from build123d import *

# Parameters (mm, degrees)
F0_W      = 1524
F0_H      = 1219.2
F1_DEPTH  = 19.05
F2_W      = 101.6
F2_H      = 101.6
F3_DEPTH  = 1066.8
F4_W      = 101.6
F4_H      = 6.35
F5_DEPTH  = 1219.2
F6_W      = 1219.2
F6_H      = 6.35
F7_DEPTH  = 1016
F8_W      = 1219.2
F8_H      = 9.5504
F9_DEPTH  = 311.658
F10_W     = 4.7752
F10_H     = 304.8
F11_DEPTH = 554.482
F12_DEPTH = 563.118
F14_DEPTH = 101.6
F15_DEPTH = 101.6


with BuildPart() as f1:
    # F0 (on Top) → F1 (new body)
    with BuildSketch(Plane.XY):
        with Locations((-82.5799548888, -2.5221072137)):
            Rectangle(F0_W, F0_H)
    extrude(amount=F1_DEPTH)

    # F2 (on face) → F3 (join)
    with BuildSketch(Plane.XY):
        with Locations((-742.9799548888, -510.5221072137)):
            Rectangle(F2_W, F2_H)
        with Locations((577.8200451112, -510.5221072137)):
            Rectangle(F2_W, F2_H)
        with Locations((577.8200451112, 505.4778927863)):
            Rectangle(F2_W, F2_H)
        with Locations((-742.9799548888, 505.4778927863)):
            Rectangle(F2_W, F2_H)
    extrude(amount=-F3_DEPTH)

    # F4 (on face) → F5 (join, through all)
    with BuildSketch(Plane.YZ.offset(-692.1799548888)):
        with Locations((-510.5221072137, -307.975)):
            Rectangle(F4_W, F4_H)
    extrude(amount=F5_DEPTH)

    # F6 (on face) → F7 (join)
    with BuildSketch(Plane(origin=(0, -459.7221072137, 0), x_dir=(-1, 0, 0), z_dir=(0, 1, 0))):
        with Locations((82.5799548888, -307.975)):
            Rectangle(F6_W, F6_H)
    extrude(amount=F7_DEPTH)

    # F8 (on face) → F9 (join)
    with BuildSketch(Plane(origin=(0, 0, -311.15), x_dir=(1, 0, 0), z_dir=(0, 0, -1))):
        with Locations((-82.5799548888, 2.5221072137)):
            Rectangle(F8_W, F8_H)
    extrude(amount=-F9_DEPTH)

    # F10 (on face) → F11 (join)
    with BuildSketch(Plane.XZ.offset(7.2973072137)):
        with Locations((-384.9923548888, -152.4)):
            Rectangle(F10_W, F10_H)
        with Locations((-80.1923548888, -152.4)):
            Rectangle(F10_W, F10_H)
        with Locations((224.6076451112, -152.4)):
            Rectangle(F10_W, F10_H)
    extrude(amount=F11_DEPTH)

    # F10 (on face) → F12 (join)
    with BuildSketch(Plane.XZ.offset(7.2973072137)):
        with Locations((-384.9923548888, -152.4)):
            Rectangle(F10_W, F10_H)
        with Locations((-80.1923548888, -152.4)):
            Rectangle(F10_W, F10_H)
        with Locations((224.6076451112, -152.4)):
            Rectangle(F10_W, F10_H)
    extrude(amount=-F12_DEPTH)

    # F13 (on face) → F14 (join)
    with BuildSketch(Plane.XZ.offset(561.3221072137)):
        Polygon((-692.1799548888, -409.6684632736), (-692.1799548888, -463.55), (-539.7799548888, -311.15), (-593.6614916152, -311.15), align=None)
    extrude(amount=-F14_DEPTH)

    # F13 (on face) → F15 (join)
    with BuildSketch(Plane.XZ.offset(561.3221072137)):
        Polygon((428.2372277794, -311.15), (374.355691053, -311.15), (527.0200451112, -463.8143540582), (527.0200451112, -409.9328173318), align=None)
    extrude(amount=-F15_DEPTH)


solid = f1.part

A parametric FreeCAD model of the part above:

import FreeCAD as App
import Part
import Sketcher
from FreeCAD import Vector
Q = App.Units.Quantity

doc = App.newDocument("Part")
body = doc.addObject("PartDesign::Body", "Body")

# Sketch on XY plane
sketch1 = body.newObject("Sketcher::SketchObject", "Sketch")
sketch1.AttachmentSupport = (doc.getObject("XY_Plane"), [""])
sketch1.MapMode = "FlatFace"
sketch1.addGeometry([
    Part.LineSegment(Vector(-845, 607, 0), Vector(-845, -612, 0)),
    Part.LineSegment(Vector(-845, -612, 0), Vector(679, -612, 0)),
    Part.LineSegment(Vector(679, -612, 0), Vector(679, 607, 0)),
    Part.LineSegment(Vector(679, 607, 0), Vector(-845, 607, 0)),
], False)
sketch1.addConstraint([
    Sketcher.Constraint("Coincident", 0, 2, 1, 1),
    Sketcher.Constraint("Coincident", 1, 2, 2, 1),
    Sketcher.Constraint("Coincident", 2, 2, 3, 1),
    Sketcher.Constraint("Coincident", 3, 2, 0, 1),
    Sketcher.Constraint("Vertical", 0),
    Sketcher.Constraint("Horizontal", 1),
    Sketcher.Constraint("Vertical", 2),
    Sketcher.Constraint("Horizontal", 3),
    Sketcher.Constraint("DistanceX", 1, 1, 1, 2, Q("60 in")),
    Sketcher.Constraint("DistanceY", 0, 2, 0, 1, Q("48 in")),
    Sketcher.Constraint("DistanceX", 0, 2, -1, 1, Q("844.579955 mm")),
    Sketcher.Constraint("DistanceY", 0, 2, -1, 1, Q("612.122107 mm")),
])
pad1 = body.newObject("PartDesign::Pad", "Pad")
pad1.Profile = sketch1
pad1.Length = Q("0.75 in")

# Sketch on XY plane
sketch2 = body.newObject("Sketcher::SketchObject", "Sketch001")
sketch2.AttachmentSupport = (doc.getObject("XY_Plane"), [""])
sketch2.MapMode = "FlatFace"
sketch2.addGeometry([
    Part.LineSegment(Vector(-794, -460, 0), Vector(-794, -561, 0)),  # 0
    Part.LineSegment(Vector(-794, -561, 0), Vector(-692, -561, 0)),  # 1
    Part.LineSegment(Vector(-692, -561, 0), Vector(-692, -460, 0)),  # 2
    Part.LineSegment(Vector(-692, -460, 0), Vector(-794, -460, 0)),  # 3
    Part.LineSegment(Vector(527, -460, 0), Vector(527, -561, 0)),  # 4
    Part.LineSegment(Vector(527, -561, 0), Vector(629, -561, 0)),  # 5
    Part.LineSegment(Vector(629, -561, 0), Vector(629, -460, 0)),  # 6
    Part.LineSegment(Vector(629, -460, 0), Vector(527, -460, 0)),  # 7
    Part.LineSegment(Vector(527, 556, 0), Vector(527, 455, 0)),  # 8
    Part.LineSegment(Vector(527, 455, 0), Vector(629, 455, 0)),  # 9
    Part.LineSegment(Vector(629, 455, 0), Vector(629, 556, 0)),  # 10
    Part.LineSegment(Vector(629, 556, 0), Vector(527, 556, 0)),  # 11
    Part.LineSegment(Vector(-794, 556, 0), Vector(-794, 455, 0)),  # 12
    Part.LineSegment(Vector(-794, 455, 0), Vector(-692, 455, 0)),  # 13
    Part.LineSegment(Vector(-692, 455, 0), Vector(-692, 556, 0)),  # 14
    Part.LineSegment(Vector(-692, 556, 0), Vector(-794, 556, 0)),  # 15
], False)
sketch2.addConstraint([
    Sketcher.Constraint("Coincident", 0, 2, 1, 1),
    Sketcher.Constraint("Coincident", 1, 2, 2, 1),
    Sketcher.Constraint("Coincident", 2, 2, 3, 1),
    Sketcher.Constraint("Coincident", 3, 2, 0, 1),
    Sketcher.Constraint("Coincident", 4, 2, 5, 1),
    Sketcher.Constraint("Coincident", 5, 2, 6, 1),
    Sketcher.Constraint("Coincident", 6, 2, 7, 1),
    Sketcher.Constraint("Coincident", 7, 2, 4, 1),
    Sketcher.Constraint("Coincident", 8, 2, 9, 1),
    Sketcher.Constraint("Coincident", 9, 2, 10, 1),
    Sketcher.Constraint("Coincident", 10, 2, 11, 1),
    Sketcher.Constraint("Coincident", 11, 2, 8, 1),
    Sketcher.Constraint("Coincident", 12, 2, 13, 1),
    Sketcher.Constraint("Coincident", 13, 2, 14, 1),
    Sketcher.Constraint("Coincident", 14, 2, 15, 1),
    Sketcher.Constraint("Coincident", 15, 2, 12, 1),
    Sketcher.Constraint("Vertical", 0),
    Sketcher.Constraint("Horizontal", 1),
    Sketcher.Constraint("Vertical", 2),
    Sketcher.Constraint("Horizontal", 3),
    Sketcher.Constraint("Vertical", 4),
    Sketcher.Constraint("Horizontal", 5),
    Sketcher.Constraint("Vertical", 6),
    Sketcher.Constraint("Horizontal", 7),
    Sketcher.Constraint("Vertical", 8),
    Sketcher.Constraint("Horizontal", 9),
    Sketcher.Constraint("Vertical", 10),
    Sketcher.Constraint("Horizontal", 11),
    Sketcher.Constraint("Vertical", 12),
    Sketcher.Constraint("Horizontal", 13),
    Sketcher.Constraint("Vertical", 14),
    Sketcher.Constraint("Horizontal", 15),
    Sketcher.Constraint("Horizontal", 1, 2, 4, 2),
    Sketcher.Constraint("Horizontal", 3, 2, 6, 2),
    Sketcher.Constraint("Horizontal", 9, 2, 12, 2),
    Sketcher.Constraint("Horizontal", 11, 2, 14, 2),
    Sketcher.Constraint("Vertical", 7, 2, 8, 2),
    Sketcher.Constraint("Vertical", 6, 2, 9, 2),
    Sketcher.Constraint("Vertical", 3, 2, 12, 2),
    Sketcher.Constraint("Vertical", 2, 2, 13, 2),
    Sketcher.Constraint("Equal", 3, 5),
    Sketcher.Constraint("Equal", 15, 0),
    Sketcher.Constraint("Equal", 6, 8),
    Sketcher.Constraint("DistanceX", 1, 1, 1, 2, Q("4 in")),
    Sketcher.Constraint("DistanceX", 1, 2, 4, 2, Q("48 in")),
    Sketcher.Constraint("DistanceY", 7, 2, 8, 2, Q("36 in")),
    Sketcher.Constraint("DistanceX", 0, 2, -1, 1, Q("793.779955 mm")),
    Sketcher.Constraint("DistanceY", 0, 2, -1, 1, Q("561.322107 mm")),
])
pad2 = body.newObject("PartDesign::Pad", "Pad001")
pad2.Profile = sketch2
pad2.Length = Q("42 in")
pad2.Reversed = True

# Sketch on YZ plane
sketch3 = body.newObject("Sketcher::SketchObject", "Sketch002")
sketch3.AttachmentSupport = (doc.getObject("YZ_Plane"), [""])
sketch3.MapMode = "FlatFace"
sketch3.AttachmentOffset = App.Placement(Vector(0, 0, -692.179955), App.Rotation())
sketch3.addGeometry([
    Part.LineSegment(Vector(-561, -305, 0), Vector(-561, -311, 0)),
    Part.LineSegment(Vector(-561, -311, 0), Vector(-460, -311, 0)),
    Part.LineSegment(Vector(-460, -311, 0), Vector(-460, -305, 0)),
    Part.LineSegment(Vector(-460, -305, 0), Vector(-561, -305, 0)),
], False)
sketch3.addConstraint([
    Sketcher.Constraint("Coincident", 0, 2, 1, 1),
    Sketcher.Constraint("Coincident", 1, 2, 2, 1),
    Sketcher.Constraint("Coincident", 2, 2, 3, 1),
    Sketcher.Constraint("Coincident", 3, 2, 0, 1),
    Sketcher.Constraint("Vertical", 0),
    Sketcher.Constraint("Horizontal", 1),
    Sketcher.Constraint("Vertical", 2),
    Sketcher.Constraint("Horizontal", 3),
    Sketcher.Constraint("DistanceX", 1, 1, 1, 2, Q("4 in")),
    Sketcher.Constraint("DistanceY", 2, 2, -1, 1, Q("12 in")),
    Sketcher.Constraint("DistanceY", 0, 2, 0, 1, Q("0.25 in")),
    Sketcher.Constraint("DistanceX", 0, 2, -1, 1, Q("561.322107 mm")),
])
pad3 = body.newObject("PartDesign::Pad", "Pad002")
pad3.Profile = sketch3
pad3.Type = "UpToLast"

# Sketch on XZ plane
sketch4 = body.newObject("Sketcher::SketchObject", "Sketch003")
sketch4.AttachmentSupport = (doc.getObject("XZ_Plane"), [""])
sketch4.MapMode = "FlatFace"
sketch4.AttachmentOffset = App.Placement(Vector(0, 0, 459.722107), App.Rotation())
sketch4.addGeometry([
    Part.LineSegment(Vector(527, -305, 0), Vector(527, -311, 0)),
    Part.LineSegment(Vector(527, -311, 0), Vector(-692, -311, 0)),
    Part.LineSegment(Vector(-692, -311, 0), Vector(-692, -305, 0)),
    Part.LineSegment(Vector(-692, -305, 0), Vector(527, -305, 0)),
], False)
sketch4.addConstraint([
    Sketcher.Constraint("Coincident", 0, 2, 1, 1),
    Sketcher.Constraint("Coincident", 1, 2, 2, 1),
    Sketcher.Constraint("Coincident", 2, 2, 3, 1),
    Sketcher.Constraint("Coincident", 3, 2, 0, 1),
    Sketcher.Constraint("Vertical", 0),
    Sketcher.Constraint("Horizontal", 1),
    Sketcher.Constraint("Vertical", 2),
    Sketcher.Constraint("Horizontal", 3),
    Sketcher.Constraint("DistanceX", 1, 2, 1, 1, Q("48 in")),
    Sketcher.Constraint("DistanceY", 2, 2, -1, 1, Q("12 in")),
    Sketcher.Constraint("DistanceY", 0, 2, 0, 1, Q("0.25 in")),
    Sketcher.Constraint("DistanceX", -1, 1, 0, 2, Q("527.020045 mm")),
])
pad4 = body.newObject("PartDesign::Pad", "Pad003")
pad4.Profile = sketch4
pad4.Length = Q("40 in")
pad4.Reversed = True

# Sketch on XY plane
sketch5 = body.newObject("Sketcher::SketchObject", "Sketch004")
sketch5.AttachmentSupport = (doc.getObject("XY_Plane"), [""])
sketch5.MapMode = "FlatFace"
sketch5.AttachmentOffset = App.Placement(Vector(0, 0, -12.25 * 25.4), App.Rotation())
sketch5.addGeometry([
    Part.LineSegment(Vector(-692, -7, 0), Vector(-692, 2, 0)),
    Part.LineSegment(Vector(-692, 2, 0), Vector(527, 2, 0)),
    Part.LineSegment(Vector(527, 2, 0), Vector(527, -7, 0)),
    Part.LineSegment(Vector(527, -7, 0), Vector(-692, -7, 0)),
], False)
sketch5.addConstraint([
    Sketcher.Constraint("Coincident", 0, 2, 1, 1),
    Sketcher.Constraint("Coincident", 1, 2, 2, 1),
    Sketcher.Constraint("Coincident", 2, 2, 3, 1),
    Sketcher.Constraint("Coincident", 3, 2, 0, 1),
    Sketcher.Constraint("Vertical", 0),
    Sketcher.Constraint("Horizontal", 1),
    Sketcher.Constraint("Vertical", 2),
    Sketcher.Constraint("Horizontal", 3),
    Sketcher.Constraint("DistanceX", 1, 1, 1, 2, Q("48 in")),
    Sketcher.Constraint("DistanceY", 0, 1, 0, 2, Q("0.376 in")),
    Sketcher.Constraint("DistanceX", 0, 2, -1, 1, Q("692.179955 mm")),
    Sketcher.Constraint("DistanceY", -1, 1, 0, 2, Q("2.253093 mm")),
])
pad5 = body.newObject("PartDesign::Pad", "Pad004")
pad5.Profile = sketch5
pad5.Length = Q("12.27 in")

# Sketch on XZ plane
sketch6 = body.newObject("Sketcher::SketchObject", "Sketch005")
sketch6.AttachmentSupport = (doc.getObject("XZ_Plane"), [""])
sketch6.MapMode = "FlatFace"
sketch6.AttachmentOffset = App.Placement(Vector(0, 0, 7.297307), App.Rotation())
sketch6.addGeometry([
    Part.LineSegment(Vector(-387.4, 0, 0), Vector(-387.4, -304.8, 0)),  # 0
    Part.LineSegment(Vector(-387.4, -304.8, 0), Vector(-382.6, -304.8, 0)),  # 1
    Part.LineSegment(Vector(-382.6, -304.8, 0), Vector(-382.6, 0, 0)),  # 2
    Part.LineSegment(Vector(-382.6, 0, 0), Vector(-387.4, 0, 0)),  # 3
    Part.LineSegment(Vector(-82.6, 0, 0), Vector(-82.6, -304.8, 0)),  # 4
    Part.LineSegment(Vector(-82.6, -304.8, 0), Vector(-77.8, -304.8, 0)),  # 5
    Part.LineSegment(Vector(-77.8, -304.8, 0), Vector(-77.8, 0, 0)),  # 6
    Part.LineSegment(Vector(-77.8, 0, 0), Vector(-82.6, 0, 0)),  # 7
    Part.LineSegment(Vector(222.2, 0, 0), Vector(222.2, -304.8, 0)),  # 8
    Part.LineSegment(Vector(222.2, -304.8, 0), Vector(227, -304.8, 0)),  # 9
    Part.LineSegment(Vector(227, -304.8, 0), Vector(227, 0, 0)),  # 10
    Part.LineSegment(Vector(227, 0, 0), Vector(222.2, 0, 0)),  # 11
], False)
sketch6.addConstraint([
    Sketcher.Constraint("Coincident", 0, 2, 1, 1),
    Sketcher.Constraint("Coincident", 1, 2, 2, 1),
    Sketcher.Constraint("Coincident", 2, 2, 3, 1),
    Sketcher.Constraint("Coincident", 3, 2, 0, 1),
    Sketcher.Constraint("Coincident", 4, 2, 5, 1),
    Sketcher.Constraint("Coincident", 5, 2, 6, 1),
    Sketcher.Constraint("Coincident", 6, 2, 7, 1),
    Sketcher.Constraint("Coincident", 7, 2, 4, 1),
    Sketcher.Constraint("Coincident", 8, 2, 9, 1),
    Sketcher.Constraint("Coincident", 9, 2, 10, 1),
    Sketcher.Constraint("Coincident", 10, 2, 11, 1),
    Sketcher.Constraint("Coincident", 11, 2, 8, 1),
    Sketcher.Constraint("Vertical", 0),
    Sketcher.Constraint("Horizontal", 1),
    Sketcher.Constraint("Vertical", 2),
    Sketcher.Constraint("Horizontal", 3),
    Sketcher.Constraint("Vertical", 4),
    Sketcher.Constraint("Horizontal", 5),
    Sketcher.Constraint("Vertical", 6),
    Sketcher.Constraint("Horizontal", 7),
    Sketcher.Constraint("Vertical", 8),
    Sketcher.Constraint("Horizontal", 9),
    Sketcher.Constraint("Vertical", 10),
    Sketcher.Constraint("Horizontal", 11),
    Sketcher.Constraint("PointOnObject", 2, 2, -1),
    Sketcher.Constraint("PointOnObject", 6, 2, -1),
    Sketcher.Constraint("PointOnObject", 10, 2, -1),
    Sketcher.Constraint("Horizontal", 1, 2, 4, 2),
    Sketcher.Constraint("Horizontal", 5, 2, 8, 2),
    Sketcher.Constraint("Equal", 3, 5),
    Sketcher.Constraint("Equal", 7, 9),
    Sketcher.Constraint("DistanceY", 0, 2, 0, 1, Q("12 in")),
    Sketcher.Constraint("DistanceX", 0, 2, 4, 2, Q("12 in")),
    Sketcher.Constraint("DistanceX", 4, 2, 8, 2, Q("12 in")),
    Sketcher.Constraint("DistanceX", 1, 1, 1, 2, Q("0.188 in")),
    Sketcher.Constraint("DistanceX", 0, 2, -1, 1, Q("387.379955 mm")),
])
pad6 = body.newObject("PartDesign::Pad", "Pad005")
pad6.Profile = sketch6
pad6.Length = Q("21.83 in")

# Sketch on XZ plane
sketch7 = body.newObject("Sketcher::SketchObject", "Sketch006")
sketch7.AttachmentSupport = (doc.getObject("XZ_Plane"), [""])
sketch7.MapMode = "FlatFace"
sketch7.AttachmentOffset = App.Placement(Vector(0, 0, 7.297307), App.Rotation())
sketch7.addGeometry([
    Part.LineSegment(Vector(-387.4, 0, 0), Vector(-387.4, -304.8, 0)),  # 0
    Part.LineSegment(Vector(-387.4, -304.8, 0), Vector(-382.6, -304.8, 0)),  # 1
    Part.LineSegment(Vector(-382.6, -304.8, 0), Vector(-382.6, 0, 0)),  # 2
    Part.LineSegment(Vector(-382.6, 0, 0), Vector(-387.4, 0, 0)),  # 3
    Part.LineSegment(Vector(-82.6, 0, 0), Vector(-82.6, -304.8, 0)),  # 4
    Part.LineSegment(Vector(-82.6, -304.8, 0), Vector(-77.8, -304.8, 0)),  # 5
    Part.LineSegment(Vector(-77.8, -304.8, 0), Vector(-77.8, 0, 0)),  # 6
    Part.LineSegment(Vector(-77.8, 0, 0), Vector(-82.6, 0, 0)),  # 7
    Part.LineSegment(Vector(222.2, 0, 0), Vector(222.2, -304.8, 0)),  # 8
    Part.LineSegment(Vector(222.2, -304.8, 0), Vector(227, -304.8, 0)),  # 9
    Part.LineSegment(Vector(227, -304.8, 0), Vector(227, 0, 0)),  # 10
    Part.LineSegment(Vector(227, 0, 0), Vector(222.2, 0, 0)),  # 11
], False)
sketch7.addConstraint([
    Sketcher.Constraint("Coincident", 0, 2, 1, 1),
    Sketcher.Constraint("Coincident", 1, 2, 2, 1),
    Sketcher.Constraint("Coincident", 2, 2, 3, 1),
    Sketcher.Constraint("Coincident", 3, 2, 0, 1),
    Sketcher.Constraint("Coincident", 4, 2, 5, 1),
    Sketcher.Constraint("Coincident", 5, 2, 6, 1),
    Sketcher.Constraint("Coincident", 6, 2, 7, 1),
    Sketcher.Constraint("Coincident", 7, 2, 4, 1),
    Sketcher.Constraint("Coincident", 8, 2, 9, 1),
    Sketcher.Constraint("Coincident", 9, 2, 10, 1),
    Sketcher.Constraint("Coincident", 10, 2, 11, 1),
    Sketcher.Constraint("Coincident", 11, 2, 8, 1),
    Sketcher.Constraint("Vertical", 0),
    Sketcher.Constraint("Horizontal", 1),
    Sketcher.Constraint("Vertical", 2),
    Sketcher.Constraint("Horizontal", 3),
    Sketcher.Constraint("Vertical", 4),
    Sketcher.Constraint("Horizontal", 5),
    Sketcher.Constraint("Vertical", 6),
    Sketcher.Constraint("Horizontal", 7),
    Sketcher.Constraint("Vertical", 8),
    Sketcher.Constraint("Horizontal", 9),
    Sketcher.Constraint("Vertical", 10),
    Sketcher.Constraint("Horizontal", 11),
    Sketcher.Constraint("PointOnObject", 2, 2, -1),
    Sketcher.Constraint("PointOnObject", 6, 2, -1),
    Sketcher.Constraint("PointOnObject", 10, 2, -1),
    Sketcher.Constraint("Horizontal", 1, 2, 4, 2),
    Sketcher.Constraint("Horizontal", 5, 2, 8, 2),
    Sketcher.Constraint("Equal", 3, 5),
    Sketcher.Constraint("Equal", 7, 9),
    Sketcher.Constraint("DistanceY", 0, 2, 0, 1, Q("12 in")),
    Sketcher.Constraint("DistanceX", 0, 2, 4, 2, Q("12 in")),
    Sketcher.Constraint("DistanceX", 4, 2, 8, 2, Q("12 in")),
    Sketcher.Constraint("DistanceX", 1, 1, 1, 2, Q("0.188 in")),
    Sketcher.Constraint("DistanceX", 0, 2, -1, 1, Q("387.379955 mm")),
])
pad7 = body.newObject("PartDesign::Pad", "Pad006")
pad7.Profile = sketch7
pad7.Length = Q("22.17 in")
pad7.Reversed = True

# Sketch on XZ plane
sketch8 = body.newObject("Sketcher::SketchObject", "Sketch007")
sketch8.AttachmentSupport = (doc.getObject("XZ_Plane"), [""])
sketch8.MapMode = "FlatFace"
sketch8.AttachmentOffset = App.Placement(Vector(0, 0, 561.322107), App.Rotation())
sketch8.addGeometry([
    Part.LineSegment(Vector(-692, -410, 0), Vector(-692, -464, 0)),
    Part.LineSegment(Vector(-692, -464, 0), Vector(-540, -311, 0)),
    Part.LineSegment(Vector(-540, -311, 0), Vector(-594, -311, 0)),
    Part.LineSegment(Vector(-594, -311, 0), Vector(-692, -410, 0)),
], False)
sketch8.addConstraint([
    Sketcher.Constraint("Coincident", 0, 2, 1, 1),
    Sketcher.Constraint("Coincident", 1, 2, 2, 1),
    Sketcher.Constraint("Coincident", 2, 2, 3, 1),
    Sketcher.Constraint("Coincident", 3, 2, 0, 1),
    Sketcher.Constraint("Vertical", 0),
    Sketcher.Constraint("Horizontal", 2),
    Sketcher.Constraint("Parallel", 1, 3),
    Sketcher.Constraint("Equal", 2, 0),
    Sketcher.Constraint("DistanceX", 0, 2, 1, 2, Q("6 in")),
    Sketcher.Constraint("DistanceY", 0, 2, -1, 1, Q("18.25 in")),
    Sketcher.Constraint("DistanceX", 2, 2, 2, 1, Q("53.881537 mm")),
    Sketcher.Constraint("DistanceX", 2, 2, -1, 1, Q("593.661492 mm")),
])
pad8 = body.newObject("PartDesign::Pad", "Pad007")
pad8.Profile = sketch8
pad8.Length = Q("4 in")
pad8.Reversed = True

# Sketch on XZ plane
sketch9 = body.newObject("Sketcher::SketchObject", "Sketch008")
sketch9.AttachmentSupport = (doc.getObject("XZ_Plane"), [""])
sketch9.MapMode = "FlatFace"
sketch9.AttachmentOffset = App.Placement(Vector(0, 0, 561.322107), App.Rotation())
sketch9.addGeometry([
    Part.LineSegment(Vector(428, -311, 0), Vector(374, -311, 0)),
    Part.LineSegment(Vector(374, -311, 0), Vector(527, -464, 0)),
    Part.LineSegment(Vector(527, -464, 0), Vector(527, -410, 0)),
    Part.LineSegment(Vector(527, -410, 0), Vector(428, -311, 0)),
], False)
sketch9.addConstraint([
    Sketcher.Constraint("Coincident", 0, 2, 1, 1),
    Sketcher.Constraint("Coincident", 1, 2, 2, 1),
    Sketcher.Constraint("Coincident", 2, 2, 3, 1),
    Sketcher.Constraint("Coincident", 3, 2, 0, 1),
    Sketcher.Constraint("Horizontal", 0),
    Sketcher.Constraint("Vertical", 2),
    Sketcher.Constraint("Parallel", 1, 3),
    Sketcher.Constraint("Equal", 0, 2),
    Sketcher.Constraint("Distance", 1, Q("8.5 in")),
    Sketcher.Constraint("Distance", 3, Q("5.5 in")),
    Sketcher.Constraint("DistanceY", 0, 2, -1, 1, Q("12.25 in")),
    Sketcher.Constraint("DistanceX", -1, 1, 0, 2, Q("374.355691 mm")),
])
pad9 = body.newObject("PartDesign::Pad", "Pad008")
pad9.Profile = sketch9
pad9.Length = Q("4 in")
pad9.Reversed = True

doc.recompute()
